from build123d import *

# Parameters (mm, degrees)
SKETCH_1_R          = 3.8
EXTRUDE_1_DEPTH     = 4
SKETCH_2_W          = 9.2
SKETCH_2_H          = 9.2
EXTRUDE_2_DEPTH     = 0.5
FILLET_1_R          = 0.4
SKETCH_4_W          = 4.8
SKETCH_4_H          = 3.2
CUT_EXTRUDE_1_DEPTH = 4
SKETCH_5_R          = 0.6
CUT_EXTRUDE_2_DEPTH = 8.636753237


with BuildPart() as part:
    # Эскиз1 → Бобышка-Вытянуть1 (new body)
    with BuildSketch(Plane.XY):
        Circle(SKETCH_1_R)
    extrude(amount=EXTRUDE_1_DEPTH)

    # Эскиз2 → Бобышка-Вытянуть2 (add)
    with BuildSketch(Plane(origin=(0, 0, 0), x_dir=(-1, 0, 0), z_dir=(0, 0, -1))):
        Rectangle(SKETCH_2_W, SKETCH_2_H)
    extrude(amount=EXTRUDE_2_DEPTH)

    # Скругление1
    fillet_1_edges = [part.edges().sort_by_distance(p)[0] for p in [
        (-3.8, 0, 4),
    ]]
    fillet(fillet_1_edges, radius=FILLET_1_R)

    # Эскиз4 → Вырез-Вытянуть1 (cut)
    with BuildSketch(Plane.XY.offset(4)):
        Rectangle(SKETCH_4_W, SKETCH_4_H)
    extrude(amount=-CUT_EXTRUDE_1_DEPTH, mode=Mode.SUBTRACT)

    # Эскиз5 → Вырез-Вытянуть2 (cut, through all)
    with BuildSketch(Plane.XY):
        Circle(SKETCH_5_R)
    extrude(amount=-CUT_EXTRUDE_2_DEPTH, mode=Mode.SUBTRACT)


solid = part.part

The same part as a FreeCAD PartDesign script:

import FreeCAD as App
import Part
import Sketcher

V = App.Vector


def edges_at(feature, points):
    """Names of the edges that pass closest to the given points."""
    edges = feature.Shape.Edges
    near = lambda p: min(range(len(edges)), key=lambda i: edges[i].distToShape(Part.Vertex(*p))[0])
    return sorted({f"Edge{near(p) + 1}" for p in points})

doc = App.newDocument("Part")
body = doc.addObject("PartDesign::Body", "Body")

sketch1 = body.newObject("Sketcher::SketchObject", "Sketch")
sketch1.AttachmentSupport = (doc.getObject("XY_Plane"), [""])
sketch1.MapMode = "FlatFace"
sketch1.addGeometry(Part.Circle(V(0, 0, 0), V(0, 0, 1), 3.8), False)
sketch1.addConstraint([
    Sketcher.Constraint("Coincident", 0, 3, -1, 1),
    Sketcher.Constraint("Diameter", 0, 7.6),
])
pad1 = body.newObject("PartDesign::Pad", "Pad")
pad1.Profile = sketch1
pad1.Length = 4

sketch2 = body.newObject("Sketcher::SketchObject", "Sketch001")
sketch2.AttachmentSupport = (doc.getObject("XY_Plane"), [""])
sketch2.MapMode = "FlatFace"
sketch2.addGeometry([
    Part.LineSegment(V(5, 5, 0), V(5, -5, 0)),
    Part.LineSegment(V(5, -5, 0), V(-5, -5, 0)),
    Part.LineSegment(V(-5, -5, 0), V(-5, 5, 0)),
    Part.LineSegment(V(-5, 5, 0), V(5, 5, 0)),
], False)
sketch2.addConstraint([
    Sketcher.Constraint("Coincident", 0, 2, 1, 1),
    Sketcher.Constraint("Coincident", 1, 2, 2, 1),
    Sketcher.Constraint("Coincident", 2, 2, 3, 1),
    Sketcher.Constraint("Coincident", 3, 2, 0, 1),
    Sketcher.Constraint("Vertical", 0),
    Sketcher.Constraint("Horizontal", 1),
    Sketcher.Constraint("Vertical", 2),
    Sketcher.Constraint("Horizontal", 3),
    Sketcher.Constraint("Symmetric", 0, 2, 2, 2, -1, 1),
    Sketcher.Constraint("Equal", 3, 0),
    Sketcher.Constraint("DistanceX", 1, 2, 1, 1, 9.2),
])
pad2 = body.newObject("PartDesign::Pad", "Pad001")
pad2.Profile = sketch2
pad2.Length = 0.5
pad2.Reversed = True
doc.recompute()

fillet = body.newObject("PartDesign::Fillet", "Fillet")
fillet.Base = (pad2, edges_at(pad2, [(-3.8, 0, 4)]))
fillet.Radius = 0.4

sketch3 = body.newObject("Sketcher::SketchObject", "Sketch002")
sketch3.AttachmentSupport = (doc.getObject("XY_Plane"), [""])
sketch3.MapMode = "FlatFace"
sketch3.AttachmentOffset = App.Placement(V(0, 0, 4), App.Rotation())
sketch3.addGeometry([
    Part.LineSegment(V(-2.4, 1.6, 0), V(-2.4, -1.6, 0)),
    Part.LineSegment(V(-2.4, -1.6, 0), V(2.4, -1.6, 0)),
    Part.LineSegment(V(2.4, -1.6, 0), V(2.4, 1.6, 0)),
    Part.LineSegment(V(2.4, 1.6, 0), V(-2.4, 1.6, 0)),
], False)
sketch3.addConstraint([
    Sketcher.Constraint("Coincident", 0, 2, 1, 1),
    Sketcher.Constraint("Coincident", 1, 2, 2, 1),
    Sketcher.Constraint("Coincident", 2, 2, 3, 1),
    Sketcher.Constraint("Coincident", 3, 2, 0, 1),
    Sketcher.Constraint("Vertical", 0),
    Sketcher.Constraint("Horizontal", 1),
    Sketcher.Constraint("Vertical", 2),
    Sketcher.Constraint("Horizontal", 3),
    Sketcher.Constraint("Symmetric", 0, 2, 2, 2, -1, 1),
    Sketcher.Constraint("DistanceX", 1, 1, 1, 2, 4.8),
    Sketcher.Constraint("DistanceY", 0, 2, 0, 1, 3.2),
])
pocket1 = body.newObject("PartDesign::Pocket", "Pocket")
pocket1.Profile = sketch3
pocket1.Length = 4

sketch4 = body.newObject("Sketcher::SketchObject", "Sketch003")
sketch4.AttachmentSupport = (doc.getObject("XY_Plane"), [""])
sketch4.MapMode = "FlatFace"
sketch4.addGeometry(Part.Circle(V(0, 0, 0), V(0, 0, 1), 0.6), False)
sketch4.addConstraint([
    Sketcher.Constraint("Coincident", 0, 3, -1, 1),
    Sketcher.Constraint("Diameter", 0, 1.2),
])
pocket2 = body.newObject("PartDesign::Pocket", "Pocket001")
pocket2.Profile = sketch4
pocket2.Type = "ThroughAll"

doc.recompute()
